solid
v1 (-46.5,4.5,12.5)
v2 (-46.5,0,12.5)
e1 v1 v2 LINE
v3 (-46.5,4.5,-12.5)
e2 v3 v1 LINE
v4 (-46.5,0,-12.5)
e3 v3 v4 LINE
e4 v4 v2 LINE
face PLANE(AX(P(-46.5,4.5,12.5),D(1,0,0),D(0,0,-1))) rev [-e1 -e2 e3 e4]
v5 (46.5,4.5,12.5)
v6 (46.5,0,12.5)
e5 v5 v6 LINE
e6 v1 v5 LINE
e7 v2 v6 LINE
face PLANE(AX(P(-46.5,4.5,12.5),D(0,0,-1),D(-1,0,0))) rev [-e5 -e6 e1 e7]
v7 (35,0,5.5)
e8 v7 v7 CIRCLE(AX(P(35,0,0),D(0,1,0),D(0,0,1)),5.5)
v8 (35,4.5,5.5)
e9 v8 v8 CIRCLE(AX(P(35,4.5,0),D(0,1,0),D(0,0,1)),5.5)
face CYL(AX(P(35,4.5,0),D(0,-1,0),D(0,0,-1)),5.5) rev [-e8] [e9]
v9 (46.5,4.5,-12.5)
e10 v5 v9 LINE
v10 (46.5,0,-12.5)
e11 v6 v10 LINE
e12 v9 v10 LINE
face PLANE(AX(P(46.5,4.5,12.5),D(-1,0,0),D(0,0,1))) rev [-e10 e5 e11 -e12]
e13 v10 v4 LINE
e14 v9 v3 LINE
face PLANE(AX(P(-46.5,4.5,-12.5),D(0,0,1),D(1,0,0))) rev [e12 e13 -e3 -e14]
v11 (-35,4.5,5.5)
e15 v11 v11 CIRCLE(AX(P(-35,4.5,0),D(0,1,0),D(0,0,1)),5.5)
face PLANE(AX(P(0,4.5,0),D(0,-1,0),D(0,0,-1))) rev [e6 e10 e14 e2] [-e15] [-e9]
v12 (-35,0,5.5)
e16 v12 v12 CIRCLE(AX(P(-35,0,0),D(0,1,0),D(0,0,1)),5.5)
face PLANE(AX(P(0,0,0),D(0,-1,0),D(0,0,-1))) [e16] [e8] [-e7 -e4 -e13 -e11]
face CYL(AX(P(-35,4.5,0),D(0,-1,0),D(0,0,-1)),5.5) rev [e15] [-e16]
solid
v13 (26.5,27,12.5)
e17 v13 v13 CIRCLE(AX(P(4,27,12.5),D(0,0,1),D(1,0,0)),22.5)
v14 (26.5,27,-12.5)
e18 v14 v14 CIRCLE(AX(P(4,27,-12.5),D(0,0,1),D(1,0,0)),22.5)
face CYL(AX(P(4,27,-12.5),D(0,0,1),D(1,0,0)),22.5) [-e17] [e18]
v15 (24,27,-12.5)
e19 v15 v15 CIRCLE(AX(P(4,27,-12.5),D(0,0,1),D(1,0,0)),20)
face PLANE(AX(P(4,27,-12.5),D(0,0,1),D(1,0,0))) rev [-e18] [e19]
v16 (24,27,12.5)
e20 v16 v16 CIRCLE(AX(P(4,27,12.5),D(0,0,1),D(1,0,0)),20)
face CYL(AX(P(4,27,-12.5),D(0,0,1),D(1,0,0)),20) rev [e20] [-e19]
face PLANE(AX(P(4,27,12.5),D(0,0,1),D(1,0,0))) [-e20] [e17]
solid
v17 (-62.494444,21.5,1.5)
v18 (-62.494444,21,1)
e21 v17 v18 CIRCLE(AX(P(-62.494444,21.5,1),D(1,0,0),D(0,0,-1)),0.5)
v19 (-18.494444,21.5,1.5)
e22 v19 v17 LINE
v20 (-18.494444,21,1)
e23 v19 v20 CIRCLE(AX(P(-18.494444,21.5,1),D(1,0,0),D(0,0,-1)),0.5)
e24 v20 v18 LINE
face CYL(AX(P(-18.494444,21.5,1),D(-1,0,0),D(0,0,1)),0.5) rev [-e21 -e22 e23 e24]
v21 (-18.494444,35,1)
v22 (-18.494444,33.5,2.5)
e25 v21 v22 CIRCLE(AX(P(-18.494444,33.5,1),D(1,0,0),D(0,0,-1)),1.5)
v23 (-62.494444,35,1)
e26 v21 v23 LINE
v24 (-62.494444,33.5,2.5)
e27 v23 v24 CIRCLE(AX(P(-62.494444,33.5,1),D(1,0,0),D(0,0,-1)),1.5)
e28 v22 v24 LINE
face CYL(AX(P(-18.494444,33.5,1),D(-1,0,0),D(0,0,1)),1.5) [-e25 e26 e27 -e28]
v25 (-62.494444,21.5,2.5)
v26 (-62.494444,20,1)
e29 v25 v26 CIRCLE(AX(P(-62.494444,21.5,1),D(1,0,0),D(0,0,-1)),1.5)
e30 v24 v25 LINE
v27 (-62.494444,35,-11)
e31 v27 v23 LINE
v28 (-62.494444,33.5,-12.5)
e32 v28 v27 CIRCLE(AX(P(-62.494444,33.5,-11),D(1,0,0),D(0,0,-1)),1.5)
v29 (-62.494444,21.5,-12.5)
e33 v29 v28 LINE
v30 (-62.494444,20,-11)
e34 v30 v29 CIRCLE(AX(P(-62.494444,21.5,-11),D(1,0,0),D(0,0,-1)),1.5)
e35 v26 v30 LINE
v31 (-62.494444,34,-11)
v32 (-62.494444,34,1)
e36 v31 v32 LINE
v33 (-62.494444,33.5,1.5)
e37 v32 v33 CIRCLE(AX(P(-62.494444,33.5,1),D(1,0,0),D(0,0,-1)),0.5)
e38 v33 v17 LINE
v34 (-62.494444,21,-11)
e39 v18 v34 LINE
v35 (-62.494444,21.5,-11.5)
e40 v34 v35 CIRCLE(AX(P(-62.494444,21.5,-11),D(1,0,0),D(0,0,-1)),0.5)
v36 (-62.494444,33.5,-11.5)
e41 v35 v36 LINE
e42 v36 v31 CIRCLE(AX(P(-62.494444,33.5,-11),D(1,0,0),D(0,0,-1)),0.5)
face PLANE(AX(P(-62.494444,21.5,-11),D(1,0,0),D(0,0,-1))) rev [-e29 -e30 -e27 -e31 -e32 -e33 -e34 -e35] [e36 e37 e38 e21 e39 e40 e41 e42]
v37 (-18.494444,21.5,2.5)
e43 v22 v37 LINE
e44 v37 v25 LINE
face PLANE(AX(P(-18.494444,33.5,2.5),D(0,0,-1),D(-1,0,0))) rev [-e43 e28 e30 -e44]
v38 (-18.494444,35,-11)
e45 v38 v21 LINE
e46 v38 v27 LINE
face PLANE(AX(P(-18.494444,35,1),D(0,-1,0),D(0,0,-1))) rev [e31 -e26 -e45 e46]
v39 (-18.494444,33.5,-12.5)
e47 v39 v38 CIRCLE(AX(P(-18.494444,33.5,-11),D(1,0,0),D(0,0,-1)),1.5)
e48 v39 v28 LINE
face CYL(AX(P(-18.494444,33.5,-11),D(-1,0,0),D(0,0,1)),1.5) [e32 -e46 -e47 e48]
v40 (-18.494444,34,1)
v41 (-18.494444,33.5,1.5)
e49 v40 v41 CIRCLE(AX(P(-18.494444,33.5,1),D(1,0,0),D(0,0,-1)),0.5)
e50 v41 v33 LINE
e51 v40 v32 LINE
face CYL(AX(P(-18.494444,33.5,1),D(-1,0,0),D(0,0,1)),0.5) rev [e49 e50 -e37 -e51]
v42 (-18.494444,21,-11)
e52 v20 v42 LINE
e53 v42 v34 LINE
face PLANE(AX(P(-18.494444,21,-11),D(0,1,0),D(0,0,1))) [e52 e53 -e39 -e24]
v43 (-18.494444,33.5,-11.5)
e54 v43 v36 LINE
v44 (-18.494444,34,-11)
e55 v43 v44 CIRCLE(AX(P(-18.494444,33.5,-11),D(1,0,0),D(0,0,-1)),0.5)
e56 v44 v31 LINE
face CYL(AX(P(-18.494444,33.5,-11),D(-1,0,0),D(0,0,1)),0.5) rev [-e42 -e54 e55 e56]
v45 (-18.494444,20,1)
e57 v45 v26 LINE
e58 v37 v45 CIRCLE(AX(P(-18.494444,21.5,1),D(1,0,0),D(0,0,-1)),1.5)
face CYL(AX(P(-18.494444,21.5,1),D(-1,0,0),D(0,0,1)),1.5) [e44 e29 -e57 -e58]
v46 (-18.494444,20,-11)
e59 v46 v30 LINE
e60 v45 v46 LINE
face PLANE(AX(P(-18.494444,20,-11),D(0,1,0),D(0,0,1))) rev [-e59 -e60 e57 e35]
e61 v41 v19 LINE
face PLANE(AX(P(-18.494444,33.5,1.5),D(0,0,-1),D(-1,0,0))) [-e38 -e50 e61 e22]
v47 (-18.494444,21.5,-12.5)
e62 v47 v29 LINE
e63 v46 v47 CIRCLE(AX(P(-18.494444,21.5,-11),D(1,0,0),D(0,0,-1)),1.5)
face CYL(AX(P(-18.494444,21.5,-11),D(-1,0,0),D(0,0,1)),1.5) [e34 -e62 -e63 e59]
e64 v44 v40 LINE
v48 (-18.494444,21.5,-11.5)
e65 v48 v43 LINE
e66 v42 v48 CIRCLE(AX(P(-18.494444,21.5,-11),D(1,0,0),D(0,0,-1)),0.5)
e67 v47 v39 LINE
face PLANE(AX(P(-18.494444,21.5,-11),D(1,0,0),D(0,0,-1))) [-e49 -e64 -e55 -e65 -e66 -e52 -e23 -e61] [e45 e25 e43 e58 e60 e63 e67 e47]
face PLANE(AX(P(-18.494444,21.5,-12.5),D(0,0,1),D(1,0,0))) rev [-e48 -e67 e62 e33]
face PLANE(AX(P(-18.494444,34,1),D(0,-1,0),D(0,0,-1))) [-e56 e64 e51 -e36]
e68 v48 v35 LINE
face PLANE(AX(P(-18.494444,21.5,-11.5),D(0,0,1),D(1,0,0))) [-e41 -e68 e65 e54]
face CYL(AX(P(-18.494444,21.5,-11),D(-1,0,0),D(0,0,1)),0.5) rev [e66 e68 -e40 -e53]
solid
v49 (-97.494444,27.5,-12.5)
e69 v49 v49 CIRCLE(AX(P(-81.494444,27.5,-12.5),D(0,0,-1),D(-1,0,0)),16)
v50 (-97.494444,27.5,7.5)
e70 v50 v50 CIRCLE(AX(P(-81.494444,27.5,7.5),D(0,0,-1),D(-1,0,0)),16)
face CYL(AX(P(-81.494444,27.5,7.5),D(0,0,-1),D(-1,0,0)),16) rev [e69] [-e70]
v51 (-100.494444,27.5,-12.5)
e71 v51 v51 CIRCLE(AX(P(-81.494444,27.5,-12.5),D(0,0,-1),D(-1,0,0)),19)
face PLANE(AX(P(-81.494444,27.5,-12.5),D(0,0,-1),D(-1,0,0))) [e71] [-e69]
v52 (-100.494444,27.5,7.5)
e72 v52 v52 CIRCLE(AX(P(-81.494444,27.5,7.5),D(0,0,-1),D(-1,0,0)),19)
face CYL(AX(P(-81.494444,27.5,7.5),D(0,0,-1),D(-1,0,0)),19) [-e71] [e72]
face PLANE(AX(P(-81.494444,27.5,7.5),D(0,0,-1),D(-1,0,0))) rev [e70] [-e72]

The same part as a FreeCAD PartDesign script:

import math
import FreeCAD as App
import Part
import Sketcher


def add_polygon(sketch, points):
    """Adds a closed chain of lines whose ends are joined by coincident constraints."""
    first, n = sketch.GeometryCount, len(points)
    for a, b in zip(points, points[1:] + points[:1]):
        sketch.addGeometry(Part.LineSegment(App.Vector(*a, 0), App.Vector(*b, 0)), False)
    for i in range(n):
        sketch.addConstraint(Sketcher.Constraint("Coincident", first + i, 2, first + (i + 1) % n, 1))

doc = App.newDocument("Part")
body = doc.addObject("PartDesign::Body", "Body")

# Sketch on XZ plane
sketch1 = doc.addObject("Sketcher::SketchObject", "Sketch")
body.addObject(sketch1)
sketch1.AttachmentSupport = (doc.XZ_Plane, [""])
sketch1.MapMode = "FlatFace"
add_polygon(sketch1, [(-46.5, -12.5), (-46.5, 12.5), (46.5, 12.5), (46.5, -12.5)])  # lines 0-3
sketch1.addGeometry(Part.Circle(App.Vector(-35, 0, 0), App.Vector(0, 0, 1), 5.5), False)  # 4
sketch1.addGeometry(Part.Circle(App.Vector(35, 0, 0), App.Vector(0, 0, 1), 5.5), False)  # 5
sketch1.addConstraint([
    Sketcher.Constraint("Vertical", 0),
    Sketcher.Constraint("Horizontal", 1),
    Sketcher.Constraint("Vertical", 2),
    Sketcher.Constraint("Horizontal", 3),
    Sketcher.Constraint("Equal", 4, 5),
    Sketcher.Constraint("Symmetric", 4, 3, 5, 3, -1, 1),
    Sketcher.Constraint("Symmetric", 0, 2, 2, 2, -1, 1),
    Sketcher.Constraint("PointOnObject", 4, 3, -1),
    Sketcher.Constraint("Diameter", 4, 11.0),
    Sketcher.Constraint("DistanceX", 1, 1, 1, 2, 93.0),
    Sketcher.Constraint("DistanceY", 0, 1, 0, 2, 25.0),
    Sketcher.Constraint("DistanceX", 4, 3, -1, 1, 35.0),
])
pad1 = doc.addObject("PartDesign::Pad", "Pad")
body.addObject(pad1)
pad1.Profile = sketch1
pad1.Length = 4.5
pad1.Reversed = True
body2 = doc.addObject("PartDesign::Body", "Body001")

# Sketch on XY plane
sketch2 = doc.addObject("Sketcher::SketchObject", "Sketch001")
body2.addObject(sketch2)
sketch2.AttachmentSupport = (doc.getObject("XY_Plane001"), [""])
sketch2.MapMode = "FlatFace"
sketch2.AttachmentOffset = App.Placement(App.Vector(0, 0, 12.5), App.Rotation())
sketch2.addGeometry([
    Part.Circle(App.Vector(4, 27, 0), App.Vector(0, 0, 1), 22.5),
    Part.Circle(App.Vector(4, 27, 0), App.Vector(0, 0, 1), 20),
], False)
sketch2.addConstraint([
    Sketcher.Constraint("Coincident", 1, 3, 0, 3),
    Sketcher.Constraint("Diameter", 0, 45.0),
    Sketcher.Constraint("Diameter", 1, 40.0),
    Sketcher.Constraint("DistanceX", -1, 1, 0, 3, 4.0),
    Sketcher.Constraint("DistanceY", -1, 1, 0, 3, 27.0),
])
pad2 = doc.addObject("PartDesign::Pad", "Pad001")
body2.addObject(pad2)
pad2.Profile = sketch2
pad2.Length = 25
pad2.Reversed = True
body3 = doc.addObject("PartDesign::Body", "Body002")

# Sketch on YZ plane
sketch3 = doc.addObject("Sketcher::SketchObject", "Sketch002")
body3.addObject(sketch3)
sketch3.AttachmentSupport = (doc.getObject("YZ_Plane002"), [""])
sketch3.MapMode = "FlatFace"
sketch3.AttachmentOffset = App.Placement(App.Vector(0, 0, -62.494444), App.Rotation())
sketch3.addGeometry([
    Part.LineSegment(App.Vector(33.5, 2.5, 0), App.Vector(21.5, 2.5, 0)),  # 0
    Part.ArcOfCircle(Part.Circle(App.Vector(21.5, 1, 0), App.Vector(0, 0, 1), 1.5), math.radians(90), math.radians(180)),  # 1
    Part.LineSegment(App.Vector(20, 1, 0), App.Vector(20, -11, 0)),  # 2
    Part.ArcOfCircle(Part.Circle(App.Vector(21.5, -11, 0), App.Vector(0, 0, 1), 1.5), math.radians(180), math.radians(270)),  # 3
    Part.LineSegment(App.Vector(21.5, -12.5, 0), App.Vector(33.5, -12.5, 0)),  # 4
    Part.ArcOfCircle(Part.Circle(App.Vector(33.5, -11, 0), App.Vector(0, 0, 1), 1.5), math.radians(-90), math.radians(0)),  # 5
    Part.LineSegment(App.Vector(35, -11, 0), App.Vector(35, 1, 0)),  # 6
    Part.ArcOfCircle(Part.Circle(App.Vector(33.5, 1, 0), App.Vector(0, 0, 1), 1.5), math.radians(0), math.radians(90)),  # 7
    Part.LineSegment(App.Vector(21.5, 1.5, 0), App.Vector(33.5, 1.5, 0)),  # 8
    Part.ArcOfCircle(Part.Circle(App.Vector(33.5, 1, 0), App.Vector(0, 0, 1), 0.5), math.radians(0), math.radians(90)),  # 9
    Part.LineSegment(App.Vector(34, 1, 0), App.Vector(34, -11, 0)),  # 10
    Part.ArcOfCircle(Part.Circle(App.Vector(33.5, -11, 0), App.Vector(0, 0, 1), 0.5), math.radians(-90), math.radians(0)),  # 11
    Part.LineSegment(App.Vector(33.5, -11.5, 0), App.Vector(21.5, -11.5, 0)),  # 12
    Part.ArcOfCircle(Part.Circle(App.Vector(21.5, -11, 0), App.Vector(0, 0, 1), 0.5), math.radians(180), math.radians(270)),  # 13
    Part.LineSegment(App.Vector(21, -11, 0), App.Vector(21, 1, 0)),  # 14
    Part.ArcOfCircle(Part.Circle(App.Vector(21.5, 1, 0), App.Vector(0, 0, 1), 0.5), math.radians(90), math.radians(180)),  # 15
], False)
sketch3.addConstraint([
    Sketcher.Constraint("Tangent", 0, 2, 1, 1),
    Sketcher.Constraint("Tangent", 1, 2, 2, 1),
    Sketcher.Constraint("Tangent", 2, 2, 3, 1),
    Sketcher.Constraint("Tangent", 3, 2, 4, 1),
    Sketcher.Constraint("Tangent", 4, 2, 5, 1),
    Sketcher.Constraint("Tangent", 5, 2, 6, 1),
    Sketcher.Constraint("Tangent", 6, 2, 7, 1),
    Sketcher.Constraint("Tangent", 7, 2, 0, 1),
    Sketcher.Constraint("Tangent", 8, 2, 9, 2),
    Sketcher.Constraint("Tangent", 9, 1, 10, 1),
    Sketcher.Constraint("Tangent", 10, 2, 11, 2),
    Sketcher.Constraint("Tangent", 11, 1, 12, 1),
    Sketcher.Constraint("Tangent", 12, 2, 13, 2),
    Sketcher.Constraint("Tangent", 13, 1, 14, 1),
    Sketcher.Constraint("Tangent", 14, 2, 15, 2),
    Sketcher.Constraint("Tangent", 15, 1, 8, 1),
    Sketcher.Constraint("Horizontal", 0),
    Sketcher.Constraint("Vertical", 2),
    Sketcher.Constraint("Horizontal", 4),
    Sketcher.Constraint("Vertical", 6),
    Sketcher.Constraint("Horizontal", 8),
    Sketcher.Constraint("Vertical", 10),
    Sketcher.Constraint("Horizontal", 12),
    Sketcher.Constraint("Vertical", 14),
    Sketcher.Constraint("Coincident", 9, 3, 7, 3),
    Sketcher.Constraint("Coincident", 11, 3, 5, 3),
    Sketcher.Constraint("Coincident", 13, 3, 3, 3),
    Sketcher.Constraint("Equal", 1, 3),
    Sketcher.Constraint("Equal", 3, 5),
    Sketcher.Constraint("Equal", 5, 7),
    Sketcher.Constraint("Equal", 13, 15),
    Sketcher.Constraint("Equal", 12, 2),
    Sketcher.Constraint("Radius", 1, 1.5),
    Sketcher.Constraint("Radius", 9, 0.5),
    Sketcher.Constraint("DistanceX", 0, 2, 0, 1, 12.0),
    Sketcher.Constraint("DistanceY", -1, 1, 1, 3, 1.0),
    Sketcher.Constraint("DistanceX", -1, 1, 1, 2, 20.0),
])
pad3 = doc.addObject("PartDesign::Pad", "Pad002")
body3.addObject(pad3)
pad3.Profile = sketch3
pad3.Length = 44
body4 = doc.addObject("PartDesign::Body", "Body003")

# Sketch on XY plane
sketch4 = doc.addObject("Sketcher::SketchObject", "Sketch003")
body4.addObject(sketch4)
sketch4.AttachmentSupport = (doc.getObject("XY_Plane003"), [""])
sketch4.MapMode = "FlatFace"
sketch4.AttachmentOffset = App.Placement(App.Vector(0, 0, -12.5), App.Rotation())
sketch4.addGeometry([
    Part.Circle(App.Vector(-81.494444, 27.5, 0), App.Vector(0, 0, 1), 19),
    Part.Circle(App.Vector(-81.494444, 27.5, 0), App.Vector(0, 0, 1), 16),
], False)
sketch4.addConstraint([
    Sketcher.Constraint("Coincident", 1, 3, 0, 3),
    Sketcher.Constraint("Diameter", 0, 38.0),
    Sketcher.Constraint("Diameter", 1, 32.0),
    Sketcher.Constraint("DistanceY", -1, 1, 0, 3, 27.5),
    Sketcher.Constraint("DistanceX", 0, 3, -1, 1, 81.494444),
])
pad4 = doc.addObject("PartDesign::Pad", "Pad003")
body4.addObject(pad4)
pad4.Profile = sketch4
pad4.Length = 20

doc.recompute()
